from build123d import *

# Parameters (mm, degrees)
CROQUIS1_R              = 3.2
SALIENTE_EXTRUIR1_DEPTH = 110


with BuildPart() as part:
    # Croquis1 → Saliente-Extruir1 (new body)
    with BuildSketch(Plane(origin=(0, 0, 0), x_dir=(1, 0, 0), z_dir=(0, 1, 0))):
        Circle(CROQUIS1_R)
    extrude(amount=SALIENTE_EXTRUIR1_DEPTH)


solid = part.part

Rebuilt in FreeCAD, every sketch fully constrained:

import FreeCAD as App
import Part
import Sketcher

V = App.Vector

doc = App.newDocument("Part")
body = doc.addObject("PartDesign::Body", "Body")

sketch1 = doc.addObject("Sketcher::SketchObject", "Sketch")
body.addObject(sketch1)
sketch1.AttachmentSupport = (doc.XZ_Plane, [""])
sketch1.MapMode = "FlatFace"
sketch1.addGeometry(Part.Circle(V(0, 0, 0), V(0, 0, 1), 3.2), False)
sketch1.addConstraint([
    Sketcher.Constraint("Coincident", 0, 3, -1, 1),
    Sketcher.Constraint("Diameter", 0, 6.4),
])
pad1 = doc.addObject("PartDesign::Pad", "Pad")
body.addObject(pad1)
pad1.Profile = sketch1
pad1.Length = 110
pad1.Reversed = True

doc.recompute()
